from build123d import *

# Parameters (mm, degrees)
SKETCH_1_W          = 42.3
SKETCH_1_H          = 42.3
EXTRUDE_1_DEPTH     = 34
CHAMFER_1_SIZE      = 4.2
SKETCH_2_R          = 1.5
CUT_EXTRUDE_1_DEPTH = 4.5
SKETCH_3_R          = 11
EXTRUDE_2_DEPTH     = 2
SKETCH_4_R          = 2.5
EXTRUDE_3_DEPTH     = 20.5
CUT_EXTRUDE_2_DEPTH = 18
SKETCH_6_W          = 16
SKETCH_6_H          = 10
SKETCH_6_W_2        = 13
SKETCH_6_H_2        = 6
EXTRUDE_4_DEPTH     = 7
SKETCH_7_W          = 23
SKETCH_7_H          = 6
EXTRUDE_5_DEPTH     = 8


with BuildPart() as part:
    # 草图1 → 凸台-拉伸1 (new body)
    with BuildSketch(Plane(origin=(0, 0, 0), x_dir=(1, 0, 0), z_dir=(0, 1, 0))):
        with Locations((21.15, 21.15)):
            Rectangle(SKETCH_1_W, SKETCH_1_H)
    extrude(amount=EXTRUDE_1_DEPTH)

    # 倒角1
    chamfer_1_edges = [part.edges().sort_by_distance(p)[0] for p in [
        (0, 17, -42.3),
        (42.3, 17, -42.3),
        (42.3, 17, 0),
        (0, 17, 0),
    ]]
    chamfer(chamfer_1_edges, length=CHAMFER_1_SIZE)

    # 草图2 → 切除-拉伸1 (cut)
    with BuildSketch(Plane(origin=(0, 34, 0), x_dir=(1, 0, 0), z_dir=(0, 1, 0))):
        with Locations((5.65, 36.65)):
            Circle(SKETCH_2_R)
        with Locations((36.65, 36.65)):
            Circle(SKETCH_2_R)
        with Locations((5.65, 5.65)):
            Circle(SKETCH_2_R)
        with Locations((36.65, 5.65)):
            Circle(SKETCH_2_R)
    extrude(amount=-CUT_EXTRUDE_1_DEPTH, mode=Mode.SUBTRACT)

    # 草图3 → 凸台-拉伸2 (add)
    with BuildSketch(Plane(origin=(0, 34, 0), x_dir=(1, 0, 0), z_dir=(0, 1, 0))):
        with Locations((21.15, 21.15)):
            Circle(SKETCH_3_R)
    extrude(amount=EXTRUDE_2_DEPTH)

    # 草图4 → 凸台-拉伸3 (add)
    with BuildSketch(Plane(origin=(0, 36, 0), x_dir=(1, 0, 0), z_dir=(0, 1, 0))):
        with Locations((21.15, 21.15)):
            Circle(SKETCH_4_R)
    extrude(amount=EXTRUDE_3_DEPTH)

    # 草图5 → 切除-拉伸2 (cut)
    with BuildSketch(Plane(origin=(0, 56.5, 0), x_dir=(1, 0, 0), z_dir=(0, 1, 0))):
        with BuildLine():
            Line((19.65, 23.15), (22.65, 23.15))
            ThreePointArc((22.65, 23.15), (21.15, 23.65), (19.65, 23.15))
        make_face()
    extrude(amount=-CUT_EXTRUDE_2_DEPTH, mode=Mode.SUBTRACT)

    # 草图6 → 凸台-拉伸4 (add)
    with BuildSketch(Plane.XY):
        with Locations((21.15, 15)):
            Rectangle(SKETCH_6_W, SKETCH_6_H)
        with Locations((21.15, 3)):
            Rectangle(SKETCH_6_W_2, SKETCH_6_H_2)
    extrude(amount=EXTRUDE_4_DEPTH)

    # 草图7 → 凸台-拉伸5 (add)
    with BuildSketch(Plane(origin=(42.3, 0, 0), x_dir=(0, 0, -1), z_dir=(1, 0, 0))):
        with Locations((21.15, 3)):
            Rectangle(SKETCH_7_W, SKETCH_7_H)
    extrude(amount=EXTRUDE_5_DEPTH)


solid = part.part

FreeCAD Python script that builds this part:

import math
import FreeCAD as App
import Part
import Sketcher
from FreeCAD import Vector


def edges_at(feature, points):
    """Names of the edges that pass closest to the given points."""
    edges = feature.Shape.Edges
    near = lambda p: min(range(len(edges)), key=lambda i: edges[i].distToShape(Part.Vertex(*p))[0])
    return sorted({f"Edge{near(p) + 1}" for p in points})


def add_polygon(sketch, points):
    """Adds a closed chain of lines whose ends are joined by coincident constraints."""
    first, n = sketch.GeometryCount, len(points)
    for a, b in zip(points, points[1:] + points[:1]):
        sketch.addGeometry(Part.LineSegment(App.Vector(*a, 0), App.Vector(*b, 0)), False)
    for i in range(n):
        sketch.addConstraint(Sketcher.Constraint("Coincident", first + i, 2, first + (i + 1) % n, 1))

doc = App.newDocument("Part")
body = doc.addObject("PartDesign::Body", "Body")

sketch1 = doc.addObject("Sketcher::SketchObject", "Sketch")
body.addObject(sketch1)
sketch1.AttachmentSupport = (doc.XZ_Plane, [""])
sketch1.MapMode = "FlatFace"
add_polygon(sketch1, [(0, -42), (0, 0), (42, 0), (42, -42)])
sketch1.addConstraint([
    Sketcher.Constraint("Vertical", 0),
    Sketcher.Constraint("Horizontal", 1),
    Sketcher.Constraint("Vertical", 2),
    Sketcher.Constraint("Horizontal", 3),
    Sketcher.Constraint("Coincident", 0, 2, -1, 1),
    Sketcher.Constraint("Equal", 3, 0),
    Sketcher.Constraint("DistanceX", 1, 1, 1, 2, 42.3),
])
pad1 = doc.addObject("PartDesign::Pad", "Pad")
body.addObject(pad1)
pad1.Profile = sketch1
pad1.Length = 34
pad1.Reversed = True
doc.recompute()

chamfer = doc.addObject("PartDesign::Chamfer", "Chamfer")
body.addObject(chamfer)
chamfer.Base = (pad1, edges_at(pad1, [
    (0, 17, -42.3),
    (42.3, 17, -42.3),
    (42.3, 17, 0),
    (0, 17, 0),
]))
chamfer.Size = 4.2

sketch2 = doc.addObject("Sketcher::SketchObject", "Sketch001")
body.addObject(sketch2)
sketch2.AttachmentSupport = (doc.XZ_Plane, [""])
sketch2.MapMode = "FlatFace"
sketch2.AttachmentOffset = App.Placement(Vector(0, 0, -34), App.Rotation())
sketch2.addGeometry([
    Part.Circle(Vector(5.7, -36.6, 0), Vector(0, 0, 1), 1.5),
    Part.Circle(Vector(36.6, -36.6, 0), Vector(0, 0, 1), 1.5),
    Part.Circle(Vector(5.7, -5.7, 0), Vector(0, 0, 1), 1.5),
    Part.Circle(Vector(36.6, -5.7, 0), Vector(0, 0, 1), 1.5),
], False)
sketch2.addConstraint([
    Sketcher.Constraint("Equal", 0, 1),
    Sketcher.Constraint("Equal", 1, 2),
    Sketcher.Constraint("Equal", 2, 3),
    Sketcher.Constraint("Horizontal", 0, 3, 1, 3),
    Sketcher.Constraint("Horizontal", 2, 3, 3, 3),
    Sketcher.Constraint("Vertical", 0, 3, 2, 3),
    Sketcher.Constraint("Vertical", 1, 3, 3, 3),
    Sketcher.Constraint("Diameter", 0, 3.0),
    Sketcher.Constraint("DistanceX", 0, 3, 1, 3, 31.0),
    Sketcher.Constraint("DistanceY", 0, 3, 2, 3, 31.0),
    Sketcher.Constraint("DistanceX", -1, 1, 0, 3, 5.65),
    Sketcher.Constraint("DistanceY", 0, 3, -1, 1, 36.65),
])
pocket1 = doc.addObject("PartDesign::Pocket", "Pocket")
body.addObject(pocket1)
pocket1.Profile = sketch2
pocket1.Length = 4.5
pocket1.Reversed = True

sketch3 = doc.addObject("Sketcher::SketchObject", "Sketch002")
body.addObject(sketch3)
sketch3.AttachmentSupport = (doc.XZ_Plane, [""])
sketch3.MapMode = "FlatFace"
sketch3.AttachmentOffset = App.Placement(Vector(0, 0, -34), App.Rotation())
sketch3.addGeometry(Part.Circle(Vector(21, -21, 0), Vector(0, 0, 1), 11), False)
sketch3.addConstraint([
    Sketcher.Constraint("Diameter", 0, 22.0),
    Sketcher.Constraint("DistanceX", -1, 1, 0, 3, 21.15),
    Sketcher.Constraint("DistanceY", 0, 3, -1, 1, 21.15),
])
pad2 = doc.addObject("PartDesign::Pad", "Pad001")
body.addObject(pad2)
pad2.Profile = sketch3
pad2.Length = 2
pad2.Reversed = True

sketch4 = doc.addObject("Sketcher::SketchObject", "Sketch003")
body.addObject(sketch4)
sketch4.AttachmentSupport = (doc.XZ_Plane, [""])
sketch4.MapMode = "FlatFace"
sketch4.AttachmentOffset = App.Placement(Vector(0, 0, -36), App.Rotation())
sketch4.addGeometry(Part.Circle(Vector(21.1, -21.1, 0), Vector(0, 0, 1), 2.5), False)
sketch4.addConstraint([
    Sketcher.Constraint("Diameter", 0, 5.0),
    Sketcher.Constraint("DistanceX", -1, 1, 0, 3, 21.15),
    Sketcher.Constraint("DistanceY", 0, 3, -1, 1, 21.15),
])
pad3 = doc.addObject("PartDesign::Pad", "Pad002")
body.addObject(pad3)
pad3.Profile = sketch4
pad3.Length = 20.5
pad3.Reversed = True

sketch5 = doc.addObject("Sketcher::SketchObject", "Sketch004")
body.addObject(sketch5)
sketch5.AttachmentSupport = (doc.XZ_Plane, [""])
sketch5.MapMode = "FlatFace"
sketch5.AttachmentOffset = App.Placement(Vector(0, 0, -56.5), App.Rotation())
sketch5.addGeometry([
    Part.LineSegment(Vector(19.6, -23.1, 0), Vector(22.6, -23.1, 0)),
    Part.ArcOfCircle(Part.Circle(Vector(21.1, -21.1, 0), Vector(0, 0, 1), 2.5), math.radians(-127), math.radians(-53)),
], False)
sketch5.addConstraint([
    Sketcher.Constraint("Coincident", 0, 1, 1, 1),
    Sketcher.Constraint("Coincident", 1, 2, 0, 2),
    Sketcher.Constraint("Horizontal", 0),
    Sketcher.Constraint("Radius", 1, 2.5),
    Sketcher.Constraint("DistanceX", 0, 1, 0, 2, 3.0),
    Sketcher.Constraint("DistanceX", -1, 1, 1, 3, 21.15),
    Sketcher.Constraint("DistanceY", 1, 3, -1, 1, 21.15),
])
pocket2 = doc.addObject("PartDesign::Pocket", "Pocket001")
body.addObject(pocket2)
pocket2.Profile = sketch5
pocket2.Length = 18
pocket2.Reversed = True

sketch6 = doc.addObject("Sketcher::SketchObject", "Sketch005")
body.addObject(sketch6)
sketch6.AttachmentSupport = (doc.XY_Plane, [""])
sketch6.MapMode = "FlatFace"
add_polygon(sketch6, [(13, 20), (13, 10), (29, 10), (29, 20)])
add_polygon(sketch6, [(15, 6), (15, 0), (28, 0), (28, 6)])
sketch6.addConstraint([
    Sketcher.Constraint("Vertical", 0),
    Sketcher.Constraint("Horizontal", 1),
    Sketcher.Constraint("Vertical", 2),
    Sketcher.Constraint("Horizontal", 3),
    Sketcher.Constraint("Vertical", 4),
    Sketcher.Constraint("Horizontal", 5),
    Sketcher.Constraint("Vertical", 6),
    Sketcher.Constraint("Horizontal", 7),
    Sketcher.Constraint("PointOnObject", 4, 2, -1),
    Sketcher.Constraint("DistanceX", 1, 1, 1, 2, 16.0),
    Sketcher.Constraint("DistanceX", 5, 1, 5, 2, 13.0),
    Sketcher.Constraint("DistanceY", 0, 2, 0, 1, 10.0),
    Sketcher.Constraint("DistanceY", 4, 2, 4, 1, 6.0),
    Sketcher.Constraint("DistanceY", -1, 1, 0, 2, 10.0),
    Sketcher.Constraint("DistanceX", 0, 2, 4, 2, 1.5),
    Sketcher.Constraint("DistanceX", -1, 1, 0, 2, 13.15),
])
pad4 = doc.addObject("PartDesign::Pad", "Pad003")
body.addObject(pad4)
pad4.Profile = sketch6
pad4.Length = 7

sketch7 = doc.addObject("Sketcher::SketchObject", "Sketch006")
body.addObject(sketch7)
sketch7.AttachmentSupport = (doc.YZ_Plane, [""])
sketch7.MapMode = "FlatFace"
sketch7.AttachmentOffset = App.Placement(Vector(0, 0, 42.3), App.Rotation())
add_polygon(sketch7, [(6, -10), (0, -10), (0, -33), (6, -33)])
sketch7.addConstraint([
    Sketcher.Constraint("Horizontal", 0),
    Sketcher.Constraint("Vertical", 1),
    Sketcher.Constraint("Horizontal", 2),
    Sketcher.Constraint("Vertical", 3),
    Sketcher.Constraint("PointOnObject", 0, 2, -2),
    Sketcher.Constraint("DistanceX", 0, 2, 0, 1, 6.0),
    Sketcher.Constraint("DistanceY", 1, 2, 1, 1, 23.0),
    Sketcher.Constraint("DistanceY", 0, 2, -1, 1, 9.65),
])
pad5 = doc.addObject("PartDesign::Pad", "Pad004")
body.addObject(pad5)
pad5.Profile = sketch7
pad5.Length = 8

doc.recompute()
